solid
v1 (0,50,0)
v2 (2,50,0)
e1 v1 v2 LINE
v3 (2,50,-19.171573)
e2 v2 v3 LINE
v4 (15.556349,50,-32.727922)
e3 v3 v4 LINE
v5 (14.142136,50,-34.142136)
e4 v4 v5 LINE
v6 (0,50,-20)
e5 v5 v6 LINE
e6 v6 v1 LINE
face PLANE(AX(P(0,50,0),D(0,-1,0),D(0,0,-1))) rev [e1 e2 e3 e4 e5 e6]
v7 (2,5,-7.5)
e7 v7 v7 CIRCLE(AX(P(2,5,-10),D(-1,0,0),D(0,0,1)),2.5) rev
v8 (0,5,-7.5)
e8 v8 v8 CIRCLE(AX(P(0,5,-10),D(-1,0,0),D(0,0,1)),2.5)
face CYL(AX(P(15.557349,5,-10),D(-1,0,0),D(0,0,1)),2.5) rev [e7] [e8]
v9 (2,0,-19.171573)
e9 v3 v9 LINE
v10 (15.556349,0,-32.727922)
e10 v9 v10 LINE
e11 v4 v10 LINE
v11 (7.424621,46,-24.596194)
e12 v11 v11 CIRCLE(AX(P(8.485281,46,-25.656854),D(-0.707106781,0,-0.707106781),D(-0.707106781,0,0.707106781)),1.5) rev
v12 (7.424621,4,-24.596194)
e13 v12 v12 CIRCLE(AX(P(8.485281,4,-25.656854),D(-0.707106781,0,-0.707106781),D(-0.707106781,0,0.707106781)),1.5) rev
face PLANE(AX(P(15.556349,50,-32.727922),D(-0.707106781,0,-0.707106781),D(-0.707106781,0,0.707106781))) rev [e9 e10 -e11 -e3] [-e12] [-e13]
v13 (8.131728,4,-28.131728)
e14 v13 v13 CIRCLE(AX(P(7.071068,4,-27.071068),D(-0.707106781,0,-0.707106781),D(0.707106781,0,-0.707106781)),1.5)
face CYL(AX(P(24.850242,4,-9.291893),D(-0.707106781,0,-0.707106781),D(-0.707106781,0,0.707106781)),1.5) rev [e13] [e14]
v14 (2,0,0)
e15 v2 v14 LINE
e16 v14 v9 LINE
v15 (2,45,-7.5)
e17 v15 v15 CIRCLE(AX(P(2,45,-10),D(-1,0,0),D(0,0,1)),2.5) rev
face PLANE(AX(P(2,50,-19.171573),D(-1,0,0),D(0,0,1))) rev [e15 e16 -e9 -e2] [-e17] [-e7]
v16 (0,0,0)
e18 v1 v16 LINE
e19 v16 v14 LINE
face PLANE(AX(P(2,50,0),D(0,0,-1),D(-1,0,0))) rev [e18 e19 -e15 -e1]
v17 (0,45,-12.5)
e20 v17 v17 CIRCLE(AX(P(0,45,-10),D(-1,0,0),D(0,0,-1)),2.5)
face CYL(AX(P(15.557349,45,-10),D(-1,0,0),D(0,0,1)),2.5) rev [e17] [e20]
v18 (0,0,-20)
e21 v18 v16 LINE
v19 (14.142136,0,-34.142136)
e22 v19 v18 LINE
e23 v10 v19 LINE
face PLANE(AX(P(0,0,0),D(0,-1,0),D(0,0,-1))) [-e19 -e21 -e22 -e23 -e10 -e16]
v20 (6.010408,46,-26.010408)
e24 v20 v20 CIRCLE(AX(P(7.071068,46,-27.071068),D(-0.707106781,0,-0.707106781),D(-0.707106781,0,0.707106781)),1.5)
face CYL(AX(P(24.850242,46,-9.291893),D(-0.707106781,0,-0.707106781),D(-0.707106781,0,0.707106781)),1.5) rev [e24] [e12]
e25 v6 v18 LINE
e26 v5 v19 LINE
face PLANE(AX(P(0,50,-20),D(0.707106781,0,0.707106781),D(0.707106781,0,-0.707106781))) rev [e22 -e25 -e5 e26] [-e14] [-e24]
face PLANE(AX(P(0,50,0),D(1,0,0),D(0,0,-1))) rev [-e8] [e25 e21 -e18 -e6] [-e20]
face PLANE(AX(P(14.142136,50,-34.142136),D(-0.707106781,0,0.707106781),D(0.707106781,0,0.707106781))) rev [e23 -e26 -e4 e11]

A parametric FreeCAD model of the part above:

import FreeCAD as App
import Part
import Sketcher
Q = App.Units.Quantity

doc = App.newDocument("Part")
params = doc.addObject("Spreadsheet::Sheet", "Params")
for row, (alias, value) in enumerate([
    ("sketch1_width", "2 mm"),
    ("sketch1_height", "20 mm"),
    ("sketch1_length", "2 mm"),
    ("sketch1_length2", "20 mm"),
    ("pad1_length", "50 mm"),
    ("sketch2_diameter", "5 mm"),
    ("sketch3_diameter", "5 mm"),
    ("sketch4_diameter", "3 mm"),
    ("sketch5_diameter", "3 mm"),
], start=1):
    params.set(f"A{row}", alias)
    params.set(f"B{row}", "=" + value)
    params.setAlias(f"B{row}", alias)

body = doc.addObject("PartDesign::Body", "Body")

sketch1 = doc.addObject("Sketcher::SketchObject", "Sketch")
body.addObject(sketch1)
sketch1.AttachmentSupport = (doc.XZ_Plane, [""])
sketch1.MapMode = "FlatFace"
sketch1.addGeometry(Part.LineSegment(App.Vector(0, -20, 0), App.Vector(0, 0, 0)), False)
sketch1.addGeometry(Part.LineSegment(App.Vector(0, 0, 0), App.Vector(2, 0, 0)), False)
sketch1.addGeometry(Part.LineSegment(App.Vector(2, 0, 0), App.Vector(2, -19.2, 0)), False)
sketch1.addGeometry(Part.LineSegment(App.Vector(2, -19.2, 0), App.Vector(15.6, -32.7, 0)), False)
sketch1.addGeometry(Part.LineSegment(App.Vector(15.6, -32.7, 0), App.Vector(14.1, -34.1, 0)), False)
sketch1.addGeometry(Part.LineSegment(App.Vector(14.1, -34.1, 0), App.Vector(0, -20, 0)), False)
sketch1.addConstraint(Sketcher.Constraint("Coincident", 0, 2, 1, 1))
sketch1.addConstraint(Sketcher.Constraint("Coincident", 1, 2, 2, 1))
sketch1.addConstraint(Sketcher.Constraint("Coincident", 2, 2, 3, 1))
sketch1.addConstraint(Sketcher.Constraint("Coincident", 3, 2, 4, 1))
sketch1.addConstraint(Sketcher.Constraint("Coincident", 4, 2, 5, 1))
sketch1.addConstraint(Sketcher.Constraint("Coincident", 5, 2, 0, 1))
sketch1.addConstraint(Sketcher.Constraint("Vertical", 0))
sketch1.addConstraint(Sketcher.Constraint("Horizontal", 1))
sketch1.addConstraint(Sketcher.Constraint("Vertical", 2))
sketch1.addConstraint(Sketcher.Constraint("Coincident", 0, 2, -1, 1))
sketch1.addConstraint(Sketcher.Constraint("Perpendicular", 3, 4))
sketch1.addConstraint(Sketcher.Constraint("Perpendicular", 4, 5))
sketch1.addConstraint(Sketcher.Constraint("DistanceX", 1, 1, 1, 2, 2.0))
sketch1.addConstraint(Sketcher.Constraint("DistanceY", 0, 1, 0, 2, 20.0))
sketch1.addConstraint(Sketcher.Constraint("Angle", 3, Q("-45 deg")))
sketch1.addConstraint(Sketcher.Constraint("Distance", 4, 2.0))
sketch1.addConstraint(Sketcher.Constraint("Distance", 5, 20.0))
sketch1.setExpression("Constraints[12]", "Params.sketch1_width")
sketch1.setExpression("Constraints[13]", "Params.sketch1_height")
sketch1.setExpression("Constraints[15]", "Params.sketch1_length")
sketch1.setExpression("Constraints[16]", "Params.sketch1_length2")
pad1 = doc.addObject("PartDesign::Pad", "Pad")
body.addObject(pad1)
pad1.Profile = sketch1
pad1.setExpression("Length", "Params.pad1_length")
pad1.Reversed = True

sketch2 = doc.addObject("Sketcher::SketchObject", "Sketch001")
body.addObject(sketch2)
sketch2.AttachmentSupport = (doc.YZ_Plane, [""])
sketch2.MapMode = "FlatFace"
sketch2.addGeometry(Part.Circle(App.Vector(5, -10, 0), App.Vector(0, 0, 1), 2.5), False)
sketch2.addConstraint(Sketcher.Constraint("Diameter", 0, 5.0))
sketch2.addConstraint(Sketcher.Constraint("DistanceX", -1, 1, 0, 3, 5.0))
sketch2.addConstraint(Sketcher.Constraint("DistanceY", 0, 3, -1, 1, 10.0))
sketch2.setExpression("Constraints[0]", "Params.sketch2_diameter")
pocket1 = doc.addObject("PartDesign::Pocket", "Pocket")
body.addObject(pocket1)
pocket1.Profile = sketch2
pocket1.Type = "UpToFirst"
pocket1.Reversed = True

sketch3 = doc.addObject("Sketcher::SketchObject", "Sketch002")
body.addObject(sketch3)
sketch3.AttachmentSupport = (doc.YZ_Plane, [""])
sketch3.MapMode = "FlatFace"
sketch3.addGeometry(Part.Circle(App.Vector(45, -10, 0), App.Vector(0, 0, 1), 2.5), False)
sketch3.addConstraint(Sketcher.Constraint("Diameter", 0, 5.0))
sketch3.addConstraint(Sketcher.Constraint("DistanceX", -1, 1, 0, 3, 45.0))
sketch3.addConstraint(Sketcher.Constraint("DistanceY", 0, 3, -1, 1, 10.0))
sketch3.setExpression("Constraints[0]", "Params.sketch3_diameter")
pocket2 = doc.addObject("PartDesign::Pocket", "Pocket001")
body.addObject(pocket2)
pocket2.Profile = sketch3
pocket2.Type = "UpToFirst"
pocket2.Reversed = True

sketch4 = doc.addObject("Sketcher::SketchObject", "Sketch003")
body.addObject(sketch4)
sketch4.Placement = App.Placement(App.Vector(-10, 0, -10), App.Rotation(App.Vector(-0.707106781, 0, 0.707106781), App.Vector(0, 0.999999999, 0), App.Vector(-0.707106781, 0, -0.707106781), "ZXY"))
sketch4.addGeometry(Part.Circle(App.Vector(-24.1, 46, 0), App.Vector(0, 0, 1), 1.5), False)
sketch4.addConstraint(Sketcher.Constraint("Diameter", 0, 3.0))
sketch4.addConstraint(Sketcher.Constraint("DistanceY", -1, 1, 0, 3, 46.0))
sketch4.addConstraint(Sketcher.Constraint("DistanceX", 0, 3, -1, 1, 24.142136))
sketch4.setExpression("Constraints[0]", "Params.sketch4_diameter")
pocket3 = doc.addObject("PartDesign::Pocket", "Pocket002")
body.addObject(pocket3)
pocket3.Profile = sketch4
pocket3.Type = "UpToFirst"

sketch5 = doc.addObject("Sketcher::SketchObject", "Sketch004")
body.addObject(sketch5)
sketch5.Placement = App.Placement(App.Vector(-10, 0, -10), App.Rotation(App.Vector(-0.707106781, 0, 0.707106781), App.Vector(0, 0.999999999, 0), App.Vector(-0.707106781, 0, -0.707106781), "ZXY"))
sketch5.addGeometry(Part.Circle(App.Vector(-24.1, 4, 0), App.Vector(0, 0, 1), 1.5), False)
sketch5.addConstraint(Sketcher.Constraint("Diameter", 0, 3.0))
sketch5.addConstraint(Sketcher.Constraint("DistanceY", -1, 1, 0, 3, 4.0))
sketch5.addConstraint(Sketcher.Constraint("DistanceX", 0, 3, -1, 1, 24.142136))
sketch5.setExpression("Constraints[0]", "Params.sketch5_diameter")
pocket4 = doc.addObject("PartDesign::Pocket", "Pocket003")
body.addObject(pocket4)
pocket4.Profile = sketch5
pocket4.Type = "UpToFirst"

doc.recompute()
